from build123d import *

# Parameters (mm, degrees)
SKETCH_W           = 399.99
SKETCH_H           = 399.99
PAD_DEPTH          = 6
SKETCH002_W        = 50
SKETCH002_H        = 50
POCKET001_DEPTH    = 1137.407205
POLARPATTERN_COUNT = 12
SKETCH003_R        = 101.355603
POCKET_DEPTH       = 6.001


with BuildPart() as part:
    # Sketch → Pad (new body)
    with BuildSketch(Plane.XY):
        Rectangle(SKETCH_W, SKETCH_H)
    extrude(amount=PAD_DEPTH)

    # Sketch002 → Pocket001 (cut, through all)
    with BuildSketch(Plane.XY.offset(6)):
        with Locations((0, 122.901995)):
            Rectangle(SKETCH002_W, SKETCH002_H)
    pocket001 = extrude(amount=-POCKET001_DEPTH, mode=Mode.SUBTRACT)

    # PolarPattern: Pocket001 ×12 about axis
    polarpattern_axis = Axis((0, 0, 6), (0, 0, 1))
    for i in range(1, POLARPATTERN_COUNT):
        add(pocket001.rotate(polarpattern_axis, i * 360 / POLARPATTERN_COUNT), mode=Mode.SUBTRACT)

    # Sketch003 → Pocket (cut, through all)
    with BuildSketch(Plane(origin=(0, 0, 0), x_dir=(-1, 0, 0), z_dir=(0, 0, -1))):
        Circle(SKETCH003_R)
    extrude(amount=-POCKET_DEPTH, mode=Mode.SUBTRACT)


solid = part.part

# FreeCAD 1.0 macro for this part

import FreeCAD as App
import Part
import Sketcher

V = App.Vector

doc = App.newDocument("Part")
body = doc.addObject("PartDesign::Body", "Body")

sketch1 = body.newObject("Sketcher::SketchObject", "Sketch")
sketch1.AttachmentSupport = (doc.getObject("XY_Plane"), [""])
sketch1.MapMode = "FlatFace"
sketch1.addGeometry(Part.LineSegment(V(-199.995, 199.995, 0), V(-199.995, -199.995, 0)), False)
sketch1.addGeometry(Part.LineSegment(V(-199.995, -199.995, 0), V(199.995, -199.995, 0)), False)
sketch1.addGeometry(Part.LineSegment(V(199.995, -199.995, 0), V(199.995, 199.995, 0)), False)
sketch1.addGeometry(Part.LineSegment(V(199.995, 199.995, 0), V(-199.995, 199.995, 0)), False)
sketch1.addConstraint(Sketcher.Constraint("Coincident", 0, 2, 1, 1))
sketch1.addConstraint(Sketcher.Constraint("Coincident", 1, 2, 2, 1))
sketch1.addConstraint(Sketcher.Constraint("Coincident", 2, 2, 3, 1))
sketch1.addConstraint(Sketcher.Constraint("Coincident", 3, 2, 0, 1))
sketch1.addConstraint(Sketcher.Constraint("Vertical", 0))
sketch1.addConstraint(Sketcher.Constraint("Horizontal", 1))
sketch1.addConstraint(Sketcher.Constraint("Vertical", 2))
sketch1.addConstraint(Sketcher.Constraint("Horizontal", 3))
sketch1.addConstraint(Sketcher.Constraint("Symmetric", 0, 2, 2, 2, -1, 1))
sketch1.addConstraint(Sketcher.Constraint("Equal", 3, 0))
sketch1.addConstraint(Sketcher.Constraint("DistanceX", 1, 1, 1, 2, 399.99))
pad1 = body.newObject("PartDesign::Pad", "Pad")
pad1.Profile = sketch1
pad1.Length = 6

sketch2 = body.newObject("Sketcher::SketchObject", "Sketch001")
sketch2.AttachmentSupport = (doc.getObject("XY_Plane"), [""])
sketch2.MapMode = "FlatFace"
sketch2.AttachmentOffset = App.Placement(V(0, 0, 6), App.Rotation())
sketch2.addGeometry(Part.LineSegment(V(-25, 147.901995, 0), V(-25, 97.901995, 0)), False)
sketch2.addGeometry(Part.LineSegment(V(-25, 97.901995, 0), V(25, 97.901995, 0)), False)
sketch2.addGeometry(Part.LineSegment(V(25, 97.901995, 0), V(25, 147.901995, 0)), False)
sketch2.addGeometry(Part.LineSegment(V(25, 147.901995, 0), V(-25, 147.901995, 0)), False)
sketch2.addConstraint(Sketcher.Constraint("Coincident", 0, 2, 1, 1))
sketch2.addConstraint(Sketcher.Constraint("Coincident", 1, 2, 2, 1))
sketch2.addConstraint(Sketcher.Constraint("Coincident", 2, 2, 3, 1))
sketch2.addConstraint(Sketcher.Constraint("Coincident", 3, 2, 0, 1))
sketch2.addConstraint(Sketcher.Constraint("Vertical", 0))
sketch2.addConstraint(Sketcher.Constraint("Horizontal", 1))
sketch2.addConstraint(Sketcher.Constraint("Vertical", 2))
sketch2.addConstraint(Sketcher.Constraint("Horizontal", 3))
sketch2.addConstraint(Sketcher.Constraint("Equal", 3, 0))
sketch2.addConstraint(Sketcher.Constraint("DistanceX", 1, 1, 1, 2, 50.0))
sketch2.addConstraint(Sketcher.Constraint("DistanceX", 0, 2, -1, 1, 25.0))
sketch2.addConstraint(Sketcher.Constraint("DistanceY", -1, 1, 0, 2, 97.901995))
pocket1 = body.newObject("PartDesign::Pocket", "Pocket")
pocket1.Profile = sketch2
pocket1.Type = "ThroughAll"
doc.recompute()

polarpattern = body.newObject("PartDesign::PolarPattern", "PolarPattern")
polarpattern.Originals = [pocket1]
polarpattern.Axis = (doc.getObject("Z_Axis"), [""])
polarpattern.Angle = 360
polarpattern.Occurrences = 12
body.Tip = polarpattern

sketch3 = body.newObject("Sketcher::SketchObject", "Sketch002")
sketch3.AttachmentSupport = (doc.getObject("XY_Plane"), [""])
sketch3.MapMode = "FlatFace"
sketch3.addGeometry(Part.Circle(V(0, 0, 0), V(0, 0, 1), 101.355603), False)
sketch3.addConstraint(Sketcher.Constraint("Coincident", 0, 3, -1, 1))
sketch3.addConstraint(Sketcher.Constraint("Diameter", 0, 202.711206))
pocket2 = body.newObject("PartDesign::Pocket", "Pocket001")
pocket2.Profile = sketch3
pocket2.Type = "ThroughAll"
pocket2.Reversed = True

doc.recompute()
